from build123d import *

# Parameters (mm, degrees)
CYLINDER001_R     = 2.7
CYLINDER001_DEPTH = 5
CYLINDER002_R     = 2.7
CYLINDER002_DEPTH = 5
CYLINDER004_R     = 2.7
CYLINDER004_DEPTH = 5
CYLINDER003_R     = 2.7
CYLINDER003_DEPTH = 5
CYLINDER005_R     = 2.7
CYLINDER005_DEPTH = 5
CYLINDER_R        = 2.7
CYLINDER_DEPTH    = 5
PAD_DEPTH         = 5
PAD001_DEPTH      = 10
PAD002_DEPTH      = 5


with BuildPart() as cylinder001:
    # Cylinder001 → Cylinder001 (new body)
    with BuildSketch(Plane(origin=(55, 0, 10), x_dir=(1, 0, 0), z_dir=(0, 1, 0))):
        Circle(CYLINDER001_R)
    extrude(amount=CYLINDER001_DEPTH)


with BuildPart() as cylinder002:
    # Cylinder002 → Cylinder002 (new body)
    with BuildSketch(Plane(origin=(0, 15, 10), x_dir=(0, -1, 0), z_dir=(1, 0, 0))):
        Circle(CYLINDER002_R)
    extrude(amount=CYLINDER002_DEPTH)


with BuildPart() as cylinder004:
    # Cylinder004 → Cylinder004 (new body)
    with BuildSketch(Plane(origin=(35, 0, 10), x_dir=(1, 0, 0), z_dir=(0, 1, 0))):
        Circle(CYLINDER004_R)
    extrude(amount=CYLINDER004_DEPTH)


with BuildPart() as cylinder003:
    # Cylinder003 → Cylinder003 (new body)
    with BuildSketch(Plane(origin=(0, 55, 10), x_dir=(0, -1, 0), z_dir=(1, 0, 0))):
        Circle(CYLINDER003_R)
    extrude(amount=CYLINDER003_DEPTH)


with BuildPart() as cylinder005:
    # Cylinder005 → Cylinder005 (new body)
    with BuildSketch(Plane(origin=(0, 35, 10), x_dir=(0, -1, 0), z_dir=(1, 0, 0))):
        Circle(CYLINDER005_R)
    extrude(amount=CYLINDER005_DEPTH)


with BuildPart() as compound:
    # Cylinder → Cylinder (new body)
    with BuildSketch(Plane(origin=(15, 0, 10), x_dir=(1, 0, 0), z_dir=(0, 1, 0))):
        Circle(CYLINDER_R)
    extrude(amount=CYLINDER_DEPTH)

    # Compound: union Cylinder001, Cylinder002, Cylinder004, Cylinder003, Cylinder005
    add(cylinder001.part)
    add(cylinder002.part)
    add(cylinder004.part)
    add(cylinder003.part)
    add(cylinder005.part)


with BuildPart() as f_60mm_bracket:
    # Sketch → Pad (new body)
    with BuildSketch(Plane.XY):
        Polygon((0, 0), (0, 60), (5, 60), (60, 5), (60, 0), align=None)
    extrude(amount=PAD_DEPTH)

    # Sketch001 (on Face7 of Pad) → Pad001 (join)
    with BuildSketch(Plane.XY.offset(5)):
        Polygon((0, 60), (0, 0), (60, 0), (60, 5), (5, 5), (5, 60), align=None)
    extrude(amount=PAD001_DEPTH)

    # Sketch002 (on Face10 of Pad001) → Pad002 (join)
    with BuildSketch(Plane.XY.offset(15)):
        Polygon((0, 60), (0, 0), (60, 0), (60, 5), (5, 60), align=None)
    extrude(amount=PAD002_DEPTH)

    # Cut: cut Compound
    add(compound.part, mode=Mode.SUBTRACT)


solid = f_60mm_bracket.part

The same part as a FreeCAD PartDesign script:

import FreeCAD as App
import Part
import Sketcher

V = App.Vector


def add_polygon(sketch, points):
    """Adds a closed chain of lines whose ends are joined by coincident constraints."""
    first, n = sketch.GeometryCount, len(points)
    for a, b in zip(points, points[1:] + points[:1]):
        sketch.addGeometry(Part.LineSegment(App.Vector(*a, 0), App.Vector(*b, 0)), False)
    for i in range(n):
        sketch.addConstraint(Sketcher.Constraint("Coincident", first + i, 2, first + (i + 1) % n, 1))

doc = App.newDocument("Part")
params = doc.addObject("Spreadsheet::Sheet", "Params")
for row, (alias, value) in enumerate([
    ("sketch1_diameter", "5.4 mm"),
    ("pad1_length", "5 mm"),
    ("sketch2_diameter", "5.4 mm"),
    ("pad2_length", "5 mm"),
    ("sketch3_diameter", "5.4 mm"),
    ("pad3_length", "5 mm"),
    ("sketch4_diameter", "5.4 mm"),
    ("pad4_length", "5 mm"),
    ("sketch5_diameter", "5.4 mm"),
    ("pad5_length", "5 mm"),
    ("sketch6_diameter", "5.4 mm"),
    ("pad6_length", "5 mm"),
    ("sketch7_width", "60 mm"),
    ("sketch7_width2", "5 mm"),
    ("pad7_length", "5 mm"),
    ("sketch8_width", "60 mm"),
    ("sketch8_width2", "55 mm"),
    ("pad8_length", "10 mm"),
    ("sketch9_width", "60 mm"),
    ("sketch9_width2", "5 mm"),
    ("pad9_length", "5 mm"),
], start=1):
    params.set(f"A{row}", alias)
    params.set(f"B{row}", "=" + value)
    params.setAlias(f"B{row}", alias)

body = doc.addObject("PartDesign::Body", "Body")

# Sketch on XZ plane
sketch1 = doc.addObject("Sketcher::SketchObject", "Sketch")
body.addObject(sketch1)
sketch1.AttachmentSupport = (doc.XZ_Plane, [""])
sketch1.MapMode = "FlatFace"
sketch1.addGeometry(Part.Circle(V(55, 10, 0), V(0, 0, 1), 2.7), False)
sketch1.addConstraint([
    Sketcher.Constraint("Diameter", 0, 5.4),
    Sketcher.Constraint("DistanceX", -1, 1, 0, 3, 55.0),
    Sketcher.Constraint("DistanceY", -1, 1, 0, 3, 10.0),
])
sketch1.setExpression("Constraints[0]", "Params.sketch1_diameter")
pad1 = doc.addObject("PartDesign::Pad", "Pad")
body.addObject(pad1)
pad1.Profile = sketch1
pad1.setExpression("Length", "Params.pad1_length")
pad1.Reversed = True
body2 = doc.addObject("PartDesign::Body", "Body001")

# Sketch on YZ plane
sketch2 = doc.addObject("Sketcher::SketchObject", "Sketch001")
body2.addObject(sketch2)
sketch2.AttachmentSupport = (doc.getObject("YZ_Plane001"), [""])
sketch2.MapMode = "FlatFace"
sketch2.addGeometry(Part.Circle(V(15, 10, 0), V(0, 0, 1), 2.7), False)
sketch2.addConstraint([
    Sketcher.Constraint("Diameter", 0, 5.4),
    Sketcher.Constraint("DistanceX", -1, 1, 0, 3, 15.0),
    Sketcher.Constraint("DistanceY", -1, 1, 0, 3, 10.0),
])
sketch2.setExpression("Constraints[0]", "Params.sketch2_diameter")
pad2 = doc.addObject("PartDesign::Pad", "Pad001")
body2.addObject(pad2)
pad2.Profile = sketch2
pad2.setExpression("Length", "Params.pad2_length")
body3 = doc.addObject("PartDesign::Body", "Body002")

# Sketch on XZ plane
sketch3 = doc.addObject("Sketcher::SketchObject", "Sketch002")
body3.addObject(sketch3)
sketch3.AttachmentSupport = (doc.getObject("XZ_Plane002"), [""])
sketch3.MapMode = "FlatFace"
sketch3.addGeometry(Part.Circle(V(35, 10, 0), V(0, 0, 1), 2.7), False)
sketch3.addConstraint([
    Sketcher.Constraint("Diameter", 0, 5.4),
    Sketcher.Constraint("DistanceX", -1, 1, 0, 3, 35.0),
    Sketcher.Constraint("DistanceY", -1, 1, 0, 3, 10.0),
])
sketch3.setExpression("Constraints[0]", "Params.sketch3_diameter")
pad3 = doc.addObject("PartDesign::Pad", "Pad002")
body3.addObject(pad3)
pad3.Profile = sketch3
pad3.setExpression("Length", "Params.pad3_length")
pad3.Reversed = True
body4 = doc.addObject("PartDesign::Body", "Body003")

# Sketch on YZ plane
sketch4 = doc.addObject("Sketcher::SketchObject", "Sketch003")
body4.addObject(sketch4)
sketch4.AttachmentSupport = (doc.getObject("YZ_Plane003"), [""])
sketch4.MapMode = "FlatFace"
sketch4.addGeometry(Part.Circle(V(55, 10, 0), V(0, 0, 1), 2.7), False)
sketch4.addConstraint([
    Sketcher.Constraint("Diameter", 0, 5.4),
    Sketcher.Constraint("DistanceX", -1, 1, 0, 3, 55.0),
    Sketcher.Constraint("DistanceY", -1, 1, 0, 3, 10.0),
])
sketch4.setExpression("Constraints[0]", "Params.sketch4_diameter")
pad4 = doc.addObject("PartDesign::Pad", "Pad003")
body4.addObject(pad4)
pad4.Profile = sketch4
pad4.setExpression("Length", "Params.pad4_length")
body5 = doc.addObject("PartDesign::Body", "Body004")

# Sketch on YZ plane
sketch5 = doc.addObject("Sketcher::SketchObject", "Sketch004")
body5.addObject(sketch5)
sketch5.AttachmentSupport = (doc.getObject("YZ_Plane004"), [""])
sketch5.MapMode = "FlatFace"
sketch5.addGeometry(Part.Circle(V(35, 10, 0), V(0, 0, 1), 2.7), False)
sketch5.addConstraint([
    Sketcher.Constraint("Diameter", 0, 5.4),
    Sketcher.Constraint("DistanceX", -1, 1, 0, 3, 35.0),
    Sketcher.Constraint("DistanceY", -1, 1, 0, 3, 10.0),
])
sketch5.setExpression("Constraints[0]", "Params.sketch5_diameter")
pad5 = doc.addObject("PartDesign::Pad", "Pad004")
body5.addObject(pad5)
pad5.Profile = sketch5
pad5.setExpression("Length", "Params.pad5_length")
body6 = doc.addObject("PartDesign::Body", "Body005")
body6.AllowCompound = True

# Sketch on XZ plane
sketch6 = doc.addObject("Sketcher::SketchObject", "Sketch005")
body6.addObject(sketch6)
sketch6.AttachmentSupport = (doc.getObject("XZ_Plane005"), [""])
sketch6.MapMode = "FlatFace"
sketch6.addGeometry(Part.Circle(V(15, 10, 0), V(0, 0, 1), 2.7), False)
sketch6.addConstraint([
    Sketcher.Constraint("Diameter", 0, 5.4),
    Sketcher.Constraint("DistanceX", -1, 1, 0, 3, 15.0),
    Sketcher.Constraint("DistanceY", -1, 1, 0, 3, 10.0),
])
sketch6.setExpression("Constraints[0]", "Params.sketch6_diameter")
pad6 = doc.addObject("PartDesign::Pad", "Pad005")
body6.addObject(pad6)
pad6.Profile = sketch6
pad6.setExpression("Length", "Params.pad6_length")
pad6.Reversed = True
doc.recompute()

boolean = doc.addObject("PartDesign::Boolean", "Boolean")
body6.addObject(boolean)
boolean.Type = "Fuse"
boolean.addObjects([body])
doc.recompute()

boolean2 = doc.addObject("PartDesign::Boolean", "Boolean001")
body6.addObject(boolean2)
boolean2.Type = "Fuse"
boolean2.addObjects([body2])
doc.recompute()

boolean3 = doc.addObject("PartDesign::Boolean", "Boolean002")
body6.addObject(boolean3)
boolean3.Type = "Fuse"
boolean3.addObjects([body3])
doc.recompute()

boolean4 = doc.addObject("PartDesign::Boolean", "Boolean003")
body6.addObject(boolean4)
boolean4.Type = "Fuse"
boolean4.addObjects([body4])
doc.recompute()

boolean5 = doc.addObject("PartDesign::Boolean", "Boolean004")
body6.addObject(boolean5)
boolean5.Type = "Fuse"
boolean5.addObjects([body5])
body7 = doc.addObject("PartDesign::Body", "Body006")

# Sketch on XY plane
sketch7 = doc.addObject("Sketcher::SketchObject", "Sketch006")
body7.addObject(sketch7)
sketch7.AttachmentSupport = (doc.getObject("XY_Plane006"), [""])
sketch7.MapMode = "FlatFace"
add_polygon(sketch7, [(0, 60), (0, 0), (60, 0), (60, 5), (5, 60)])  # lines 0-4
sketch7.addConstraint([
    Sketcher.Constraint("Vertical", 0),
    Sketcher.Constraint("Horizontal", 1),
    Sketcher.Constraint("Vertical", 2),
    Sketcher.Constraint("Horizontal", 4),
    Sketcher.Constraint("Coincident", 0, 2, -1, 1),
    Sketcher.Constraint("Equal", 1, 0),
    Sketcher.Constraint("Equal", 4, 2),
    Sketcher.Constraint("DistanceX", 1, 1, 1, 2, 60.0),
    Sketcher.Constraint("DistanceX", 4, 2, 4, 1, 5.0),
])
sketch7.setExpression("Constraints[12]", "Params.sketch7_width")
sketch7.setExpression("Constraints[13]", "Params.sketch7_width2")
pad7 = doc.addObject("PartDesign::Pad", "Pad006")
body7.addObject(pad7)
pad7.Profile = sketch7
pad7.setExpression("Length", "Params.pad7_length")

# Sketch on XY plane
sketch8 = doc.addObject("Sketcher::SketchObject", "Sketch007")
body7.addObject(sketch8)
sketch8.AttachmentSupport = (doc.getObject("XY_Plane006"), [""])
sketch8.MapMode = "FlatFace"
sketch8.AttachmentOffset = App.Placement(V(0, 0, 5), App.Rotation())
add_polygon(sketch8, [(0, 60), (0, 0), (60, 0), (60, 5), (5, 5), (5, 60)])  # lines 0-5
sketch8.addConstraint([
    Sketcher.Constraint("Vertical", 0),
    Sketcher.Constraint("Horizontal", 1),
    Sketcher.Constraint("Vertical", 2),
    Sketcher.Constraint("Horizontal", 3),
    Sketcher.Constraint("Vertical", 4),
    Sketcher.Constraint("Horizontal", 5),
    Sketcher.Constraint("Coincident", 0, 2, -1, 1),
    Sketcher.Constraint("Equal", 1, 0),
    Sketcher.Constraint("Equal", 5, 2),
    Sketcher.Constraint("DistanceX", 1, 1, 1, 2, 60.0),
    Sketcher.Constraint("DistanceX", 3, 2, 3, 1, 55.0),
])
sketch8.setExpression("Constraints[15]", "Params.sketch8_width")
sketch8.setExpression("Constraints[16]", "Params.sketch8_width2")
pad8 = doc.addObject("PartDesign::Pad", "Pad007")
body7.addObject(pad8)
pad8.Profile = sketch8
pad8.setExpression("Length", "Params.pad8_length")

# Sketch on XY plane
sketch9 = doc.addObject("Sketcher::SketchObject", "Sketch008")
body7.addObject(sketch9)
sketch9.AttachmentSupport = (doc.getObject("XY_Plane006"), [""])
sketch9.MapMode = "FlatFace"
sketch9.AttachmentOffset = App.Placement(V(0, 0, 15), App.Rotation())
add_polygon(sketch9, [(0, 60), (0, 0), (60, 0), (60, 5), (5, 60)])  # lines 0-4
sketch9.addConstraint([
    Sketcher.Constraint("Vertical", 0),
    Sketcher.Constraint("Horizontal", 1),
    Sketcher.Constraint("Vertical", 2),
    Sketcher.Constraint("Horizontal", 4),
    Sketcher.Constraint("Coincident", 0, 2, -1, 1),
    Sketcher.Constraint("Equal", 1, 0),
    Sketcher.Constraint("Equal", 4, 2),
    Sketcher.Constraint("DistanceX", 1, 1, 1, 2, 60.0),
    Sketcher.Constraint("DistanceX", 4, 2, 4, 1, 5.0),
])
sketch9.setExpression("Constraints[12]", "Params.sketch9_width")
sketch9.setExpression("Constraints[13]", "Params.sketch9_width2")
pad9 = doc.addObject("PartDesign::Pad", "Pad008")
body7.addObject(pad9)
pad9.Profile = sketch9
pad9.setExpression("Length", "Params.pad9_length")
doc.recompute()

boolean6 = doc.addObject("PartDesign::Boolean", "Boolean005")
body7.addObject(boolean6)
boolean6.Type = "Cut"
boolean6.addObjects([body6])

doc.recompute()
